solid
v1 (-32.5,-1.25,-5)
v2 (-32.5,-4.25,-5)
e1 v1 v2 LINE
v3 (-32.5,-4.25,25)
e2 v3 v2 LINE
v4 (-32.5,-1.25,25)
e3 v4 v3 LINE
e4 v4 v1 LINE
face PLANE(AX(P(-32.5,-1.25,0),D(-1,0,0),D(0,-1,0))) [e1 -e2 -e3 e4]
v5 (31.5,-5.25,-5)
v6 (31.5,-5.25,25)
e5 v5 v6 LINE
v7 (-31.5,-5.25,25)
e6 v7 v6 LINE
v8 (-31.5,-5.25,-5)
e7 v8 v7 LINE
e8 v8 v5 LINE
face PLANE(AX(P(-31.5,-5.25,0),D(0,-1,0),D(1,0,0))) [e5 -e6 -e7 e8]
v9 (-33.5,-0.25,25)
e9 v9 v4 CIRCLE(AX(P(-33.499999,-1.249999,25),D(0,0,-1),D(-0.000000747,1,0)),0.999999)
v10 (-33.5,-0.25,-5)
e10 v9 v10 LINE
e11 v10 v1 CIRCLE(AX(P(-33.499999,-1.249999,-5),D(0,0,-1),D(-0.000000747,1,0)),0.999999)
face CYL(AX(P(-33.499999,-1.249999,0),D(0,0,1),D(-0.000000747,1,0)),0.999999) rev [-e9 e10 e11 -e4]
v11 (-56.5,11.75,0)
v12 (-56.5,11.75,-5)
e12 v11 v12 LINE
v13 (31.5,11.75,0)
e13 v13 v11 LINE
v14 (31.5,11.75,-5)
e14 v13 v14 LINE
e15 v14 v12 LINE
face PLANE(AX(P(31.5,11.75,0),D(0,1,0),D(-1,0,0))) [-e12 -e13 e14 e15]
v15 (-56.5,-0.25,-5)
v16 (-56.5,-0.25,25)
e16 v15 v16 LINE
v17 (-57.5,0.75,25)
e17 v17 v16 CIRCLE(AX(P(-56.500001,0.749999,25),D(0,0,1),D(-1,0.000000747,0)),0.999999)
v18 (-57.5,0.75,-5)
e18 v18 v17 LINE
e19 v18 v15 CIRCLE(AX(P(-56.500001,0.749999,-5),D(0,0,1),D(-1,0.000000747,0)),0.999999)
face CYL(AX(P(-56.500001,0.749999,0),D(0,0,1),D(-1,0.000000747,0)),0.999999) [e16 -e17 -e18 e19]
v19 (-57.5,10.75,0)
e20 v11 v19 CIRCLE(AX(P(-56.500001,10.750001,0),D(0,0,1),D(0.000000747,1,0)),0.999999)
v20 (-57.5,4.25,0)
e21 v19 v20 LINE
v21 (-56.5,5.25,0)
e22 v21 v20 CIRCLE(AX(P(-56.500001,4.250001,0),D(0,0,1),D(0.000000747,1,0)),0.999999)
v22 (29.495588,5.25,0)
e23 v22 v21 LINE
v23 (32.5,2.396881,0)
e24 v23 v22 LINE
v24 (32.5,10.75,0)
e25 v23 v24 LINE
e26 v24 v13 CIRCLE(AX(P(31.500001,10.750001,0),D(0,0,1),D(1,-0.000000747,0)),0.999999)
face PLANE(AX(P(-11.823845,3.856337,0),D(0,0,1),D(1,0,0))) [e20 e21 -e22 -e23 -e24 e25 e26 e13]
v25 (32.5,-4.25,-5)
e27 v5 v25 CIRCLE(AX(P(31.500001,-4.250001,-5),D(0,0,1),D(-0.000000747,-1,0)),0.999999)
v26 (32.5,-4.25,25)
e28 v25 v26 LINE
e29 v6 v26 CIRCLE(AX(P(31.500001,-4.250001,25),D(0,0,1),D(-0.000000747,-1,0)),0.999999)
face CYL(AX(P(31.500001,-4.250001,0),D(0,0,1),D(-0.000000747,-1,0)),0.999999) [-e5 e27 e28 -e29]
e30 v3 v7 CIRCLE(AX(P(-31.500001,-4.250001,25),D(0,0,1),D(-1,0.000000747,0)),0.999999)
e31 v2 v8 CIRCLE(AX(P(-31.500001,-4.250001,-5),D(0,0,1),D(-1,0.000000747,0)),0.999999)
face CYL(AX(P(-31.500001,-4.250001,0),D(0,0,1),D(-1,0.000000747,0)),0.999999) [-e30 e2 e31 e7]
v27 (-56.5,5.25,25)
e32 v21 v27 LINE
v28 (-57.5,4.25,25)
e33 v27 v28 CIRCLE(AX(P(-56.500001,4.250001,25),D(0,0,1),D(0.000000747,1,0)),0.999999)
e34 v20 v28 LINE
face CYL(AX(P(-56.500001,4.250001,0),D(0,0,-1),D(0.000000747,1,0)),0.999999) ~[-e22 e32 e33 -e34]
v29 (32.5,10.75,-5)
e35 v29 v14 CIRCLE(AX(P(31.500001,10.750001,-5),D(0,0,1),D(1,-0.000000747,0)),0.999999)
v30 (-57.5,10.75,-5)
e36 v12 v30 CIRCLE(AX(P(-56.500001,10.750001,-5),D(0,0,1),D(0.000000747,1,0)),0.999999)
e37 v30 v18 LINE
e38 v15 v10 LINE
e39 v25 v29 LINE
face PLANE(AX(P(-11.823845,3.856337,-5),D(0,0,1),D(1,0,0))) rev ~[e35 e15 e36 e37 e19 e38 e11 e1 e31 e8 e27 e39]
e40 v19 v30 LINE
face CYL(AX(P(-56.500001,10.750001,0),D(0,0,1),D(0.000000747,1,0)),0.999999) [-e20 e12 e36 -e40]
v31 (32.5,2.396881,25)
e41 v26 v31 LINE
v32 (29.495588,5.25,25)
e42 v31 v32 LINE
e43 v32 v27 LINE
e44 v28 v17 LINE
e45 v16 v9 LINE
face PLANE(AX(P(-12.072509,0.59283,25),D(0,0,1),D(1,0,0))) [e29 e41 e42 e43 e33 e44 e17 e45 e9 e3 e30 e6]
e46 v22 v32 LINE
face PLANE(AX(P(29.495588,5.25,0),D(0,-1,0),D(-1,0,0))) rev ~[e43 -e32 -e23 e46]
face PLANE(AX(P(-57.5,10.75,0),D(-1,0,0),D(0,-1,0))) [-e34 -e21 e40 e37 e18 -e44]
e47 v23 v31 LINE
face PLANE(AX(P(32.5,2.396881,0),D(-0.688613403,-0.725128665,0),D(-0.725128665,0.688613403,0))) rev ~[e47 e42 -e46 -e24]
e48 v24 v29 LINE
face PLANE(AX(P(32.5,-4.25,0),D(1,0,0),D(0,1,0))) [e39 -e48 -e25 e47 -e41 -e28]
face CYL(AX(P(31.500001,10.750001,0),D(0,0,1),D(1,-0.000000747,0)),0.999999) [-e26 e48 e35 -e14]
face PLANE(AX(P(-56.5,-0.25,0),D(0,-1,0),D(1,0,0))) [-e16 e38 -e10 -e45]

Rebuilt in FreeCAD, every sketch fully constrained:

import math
import FreeCAD as App
import Part
import Sketcher

V = App.Vector

doc = App.newDocument("Part")
body = doc.addObject("PartDesign::Body", "Body")

# Sketch on XY plane
sketch1 = body.newObject("Sketcher::SketchObject", "Sketch")
sketch1.AttachmentSupport = (doc.getObject("XY_Plane"), [""])
sketch1.MapMode = "FlatFace"
sketch1.addGeometry(Part.ArcOfCircle(Part.Circle(V(-31.5, -4.3, 0), V(0, 0, 1), 1), math.radians(180), math.radians(270)), False)
sketch1.addGeometry(Part.LineSegment(V(-31.5, -5.2, 0), V(31.5, -5.2, 0)), False)
sketch1.addGeometry(Part.ArcOfCircle(Part.Circle(V(31.5, -4.3, 0), V(0, 0, 1), 1), math.radians(-90), math.radians(0)), False)
sketch1.addGeometry(Part.LineSegment(V(32.5, -4.2, 0), V(32.5, 2.4, 0)), False)
sketch1.addGeometry(Part.LineSegment(V(32.5, 2.4, 0), V(29.5, 5.2, 0)), False)
sketch1.addGeometry(Part.LineSegment(V(29.5, 5.2, 0), V(-56.5, 5.2, 0)), False)
sketch1.addGeometry(Part.ArcOfCircle(Part.Circle(V(-56.5, 4.3, 0), V(0, 0, 1), 1), math.radians(90), math.radians(180)), False)
sketch1.addGeometry(Part.LineSegment(V(-57.5, 4.2, 0), V(-57.5, 0.8, 0)), False)
sketch1.addGeometry(Part.ArcOfCircle(Part.Circle(V(-56.5, 0.7, 0), V(0, 0, 1), 1), math.radians(180), math.radians(270)), False)
sketch1.addGeometry(Part.LineSegment(V(-56.5, -0.2, 0), V(-33.5, -0.2, 0)), False)
sketch1.addGeometry(Part.ArcOfCircle(Part.Circle(V(-33.5, -1.2, 0), V(0, 0, 1), 1), math.radians(0), math.radians(90)), False)
sketch1.addGeometry(Part.LineSegment(V(-32.5, -1.2, 0), V(-32.5, -4.2, 0)), False)
sketch1.addConstraint(Sketcher.Constraint("Tangent", 0, 2, 1, 1))
sketch1.addConstraint(Sketcher.Constraint("Tangent", 1, 2, 2, 1))
sketch1.addConstraint(Sketcher.Constraint("Tangent", 2, 2, 3, 1))
sketch1.addConstraint(Sketcher.Constraint("Coincident", 3, 2, 4, 1))
sketch1.addConstraint(Sketcher.Constraint("Coincident", 4, 2, 5, 1))
sketch1.addConstraint(Sketcher.Constraint("Tangent", 5, 2, 6, 1))
sketch1.addConstraint(Sketcher.Constraint("Tangent", 6, 2, 7, 1))
sketch1.addConstraint(Sketcher.Constraint("Tangent", 7, 2, 8, 1))
sketch1.addConstraint(Sketcher.Constraint("Tangent", 8, 2, 9, 1))
sketch1.addConstraint(Sketcher.Constraint("Tangent", 9, 2, 10, 2))
sketch1.addConstraint(Sketcher.Constraint("Tangent", 10, 1, 11, 1))
sketch1.addConstraint(Sketcher.Constraint("Tangent", 11, 2, 0, 1))
sketch1.addConstraint(Sketcher.Constraint("Horizontal", 1))
sketch1.addConstraint(Sketcher.Constraint("Vertical", 3))
sketch1.addConstraint(Sketcher.Constraint("Horizontal", 5))
sketch1.addConstraint(Sketcher.Constraint("Vertical", 7))
sketch1.addConstraint(Sketcher.Constraint("Horizontal", 9))
sketch1.addConstraint(Sketcher.Constraint("Vertical", 11))
sketch1.addConstraint(Sketcher.Constraint("Equal", 0, 2))
sketch1.addConstraint(Sketcher.Constraint("Equal", 2, 6))
sketch1.addConstraint(Sketcher.Constraint("Equal", 6, 8))
sketch1.addConstraint(Sketcher.Constraint("Equal", 8, 10))
sketch1.addConstraint(Sketcher.Constraint("Radius", 0, 0.999999))
sketch1.addConstraint(Sketcher.Constraint("DistanceX", 1, 1, 1, 2, 63.0))
sketch1.addConstraint(Sketcher.Constraint("DistanceX", 9, 1, 9, 2, 23.0))
sketch1.addConstraint(Sketcher.Constraint("DistanceY", 11, 2, 11, 1, 3.0))
sketch1.addConstraint(Sketcher.Constraint("DistanceY", 7, 2, 7, 1, 3.5))
sketch1.addConstraint(Sketcher.Constraint("DistanceX", 0, 3, -1, 1, 31.500001))
sketch1.addConstraint(Sketcher.Constraint("DistanceY", 0, 3, -1, 1, 4.250001))
sketch1.addConstraint(Sketcher.Constraint("DistanceY", 3, 1, 3, 2, 6.646881))
sketch1.addConstraint(Sketcher.Constraint("Distance", 4, 4.143281))
pad1 = body.newObject("PartDesign::Pad", "Pad")
pad1.Profile = sketch1
pad1.Length = 25

# Sketch on XY plane
sketch2 = body.newObject("Sketcher::SketchObject", "Sketch001")
sketch2.AttachmentSupport = (doc.getObject("XY_Plane"), [""])
sketch2.MapMode = "FlatFace"
sketch2.addGeometry(Part.ArcOfCircle(Part.Circle(V(-31.5, -4.3, 0), V(0, 0, 1), 1), math.radians(180), math.radians(270)), False)
sketch2.addGeometry(Part.LineSegment(V(-31.5, -5.2, 0), V(31.5, -5.2, 0)), False)
sketch2.addGeometry(Part.ArcOfCircle(Part.Circle(V(31.5, -4.3, 0), V(0, 0, 1), 1), math.radians(-90), math.radians(0)), False)
sketch2.addGeometry(Part.LineSegment(V(32.5, -4.2, 0), V(32.5, 10.8, 0)), False)
sketch2.addGeometry(Part.ArcOfCircle(Part.Circle(V(31.5, 10.8, 0), V(0, 0, 1), 1), math.radians(0), math.radians(90)), False)
sketch2.addGeometry(Part.LineSegment(V(31.5, 11.8, 0), V(-56.5, 11.8, 0)), False)
sketch2.addGeometry(Part.ArcOfCircle(Part.Circle(V(-56.5, 10.8, 0), V(0, 0, 1), 1), math.radians(90), math.radians(180)), False)
sketch2.addGeometry(Part.LineSegment(V(-57.5, 10.8, 0), V(-57.5, 0.8, 0)), False)
sketch2.addGeometry(Part.ArcOfCircle(Part.Circle(V(-56.5, 0.7, 0), V(0, 0, 1), 1), math.radians(180), math.radians(270)), False)
sketch2.addGeometry(Part.LineSegment(V(-56.5, -0.2, 0), V(-33.5, -0.2, 0)), False)
sketch2.addGeometry(Part.ArcOfCircle(Part.Circle(V(-33.5, -1.2, 0), V(0, 0, 1), 1), math.radians(0), math.radians(90)), False)
sketch2.addGeometry(Part.LineSegment(V(-32.5, -1.2, 0), V(-32.5, -4.2, 0)), False)
sketch2.addConstraint(Sketcher.Constraint("Tangent", 0, 2, 1, 1))
sketch2.addConstraint(Sketcher.Constraint("Tangent", 1, 2, 2, 1))
sketch2.addConstraint(Sketcher.Constraint("Tangent", 2, 2, 3, 1))
sketch2.addConstraint(Sketcher.Constraint("Tangent", 3, 2, 4, 1))
sketch2.addConstraint(Sketcher.Constraint("Tangent", 4, 2, 5, 1))
sketch2.addConstraint(Sketcher.Constraint("Tangent", 5, 2, 6, 1))
sketch2.addConstraint(Sketcher.Constraint("Tangent", 6, 2, 7, 1))
sketch2.addConstraint(Sketcher.Constraint("Tangent", 7, 2, 8, 1))
sketch2.addConstraint(Sketcher.Constraint("Tangent", 8, 2, 9, 1))
sketch2.addConstraint(Sketcher.Constraint("Tangent", 9, 2, 10, 2))
sketch2.addConstraint(Sketcher.Constraint("Tangent", 10, 1, 11, 1))
sketch2.addConstraint(Sketcher.Constraint("Tangent", 11, 2, 0, 1))
sketch2.addConstraint(Sketcher.Constraint("Horizontal", 1))
sketch2.addConstraint(Sketcher.Constraint("Vertical", 3))
sketch2.addConstraint(Sketcher.Constraint("Horizontal", 5))
sketch2.addConstraint(Sketcher.Constraint("Vertical", 7))
sketch2.addConstraint(Sketcher.Constraint("Horizontal", 9))
sketch2.addConstraint(Sketcher.Constraint("Vertical", 11))
sketch2.addConstraint(Sketcher.Constraint("Equal", 0, 2))
sketch2.addConstraint(Sketcher.Constraint("Equal", 2, 4))
sketch2.addConstraint(Sketcher.Constraint("Equal", 4, 6))
sketch2.addConstraint(Sketcher.Constraint("Equal", 6, 8))
sketch2.addConstraint(Sketcher.Constraint("Equal", 8, 10))
sketch2.addConstraint(Sketcher.Constraint("Radius", 0, 0.999999))
sketch2.addConstraint(Sketcher.Constraint("DistanceX", 1, 1, 1, 2, 63.0))
sketch2.addConstraint(Sketcher.Constraint("DistanceX", 5, 2, 5, 1, 88.0))
sketch2.addConstraint(Sketcher.Constraint("DistanceY", 3, 1, 3, 2, 15.0))
sketch2.addConstraint(Sketcher.Constraint("DistanceY", 7, 2, 7, 1, 10.0))
sketch2.addConstraint(Sketcher.Constraint("DistanceX", 0, 3, -1, 1, 31.500001))
sketch2.addConstraint(Sketcher.Constraint("DistanceY", 0, 3, -1, 1, 4.250001))
pad2 = body.newObject("PartDesign::Pad", "Pad001")
pad2.Profile = sketch2
pad2.Length = 5
pad2.Reversed = True

doc.recompute()
